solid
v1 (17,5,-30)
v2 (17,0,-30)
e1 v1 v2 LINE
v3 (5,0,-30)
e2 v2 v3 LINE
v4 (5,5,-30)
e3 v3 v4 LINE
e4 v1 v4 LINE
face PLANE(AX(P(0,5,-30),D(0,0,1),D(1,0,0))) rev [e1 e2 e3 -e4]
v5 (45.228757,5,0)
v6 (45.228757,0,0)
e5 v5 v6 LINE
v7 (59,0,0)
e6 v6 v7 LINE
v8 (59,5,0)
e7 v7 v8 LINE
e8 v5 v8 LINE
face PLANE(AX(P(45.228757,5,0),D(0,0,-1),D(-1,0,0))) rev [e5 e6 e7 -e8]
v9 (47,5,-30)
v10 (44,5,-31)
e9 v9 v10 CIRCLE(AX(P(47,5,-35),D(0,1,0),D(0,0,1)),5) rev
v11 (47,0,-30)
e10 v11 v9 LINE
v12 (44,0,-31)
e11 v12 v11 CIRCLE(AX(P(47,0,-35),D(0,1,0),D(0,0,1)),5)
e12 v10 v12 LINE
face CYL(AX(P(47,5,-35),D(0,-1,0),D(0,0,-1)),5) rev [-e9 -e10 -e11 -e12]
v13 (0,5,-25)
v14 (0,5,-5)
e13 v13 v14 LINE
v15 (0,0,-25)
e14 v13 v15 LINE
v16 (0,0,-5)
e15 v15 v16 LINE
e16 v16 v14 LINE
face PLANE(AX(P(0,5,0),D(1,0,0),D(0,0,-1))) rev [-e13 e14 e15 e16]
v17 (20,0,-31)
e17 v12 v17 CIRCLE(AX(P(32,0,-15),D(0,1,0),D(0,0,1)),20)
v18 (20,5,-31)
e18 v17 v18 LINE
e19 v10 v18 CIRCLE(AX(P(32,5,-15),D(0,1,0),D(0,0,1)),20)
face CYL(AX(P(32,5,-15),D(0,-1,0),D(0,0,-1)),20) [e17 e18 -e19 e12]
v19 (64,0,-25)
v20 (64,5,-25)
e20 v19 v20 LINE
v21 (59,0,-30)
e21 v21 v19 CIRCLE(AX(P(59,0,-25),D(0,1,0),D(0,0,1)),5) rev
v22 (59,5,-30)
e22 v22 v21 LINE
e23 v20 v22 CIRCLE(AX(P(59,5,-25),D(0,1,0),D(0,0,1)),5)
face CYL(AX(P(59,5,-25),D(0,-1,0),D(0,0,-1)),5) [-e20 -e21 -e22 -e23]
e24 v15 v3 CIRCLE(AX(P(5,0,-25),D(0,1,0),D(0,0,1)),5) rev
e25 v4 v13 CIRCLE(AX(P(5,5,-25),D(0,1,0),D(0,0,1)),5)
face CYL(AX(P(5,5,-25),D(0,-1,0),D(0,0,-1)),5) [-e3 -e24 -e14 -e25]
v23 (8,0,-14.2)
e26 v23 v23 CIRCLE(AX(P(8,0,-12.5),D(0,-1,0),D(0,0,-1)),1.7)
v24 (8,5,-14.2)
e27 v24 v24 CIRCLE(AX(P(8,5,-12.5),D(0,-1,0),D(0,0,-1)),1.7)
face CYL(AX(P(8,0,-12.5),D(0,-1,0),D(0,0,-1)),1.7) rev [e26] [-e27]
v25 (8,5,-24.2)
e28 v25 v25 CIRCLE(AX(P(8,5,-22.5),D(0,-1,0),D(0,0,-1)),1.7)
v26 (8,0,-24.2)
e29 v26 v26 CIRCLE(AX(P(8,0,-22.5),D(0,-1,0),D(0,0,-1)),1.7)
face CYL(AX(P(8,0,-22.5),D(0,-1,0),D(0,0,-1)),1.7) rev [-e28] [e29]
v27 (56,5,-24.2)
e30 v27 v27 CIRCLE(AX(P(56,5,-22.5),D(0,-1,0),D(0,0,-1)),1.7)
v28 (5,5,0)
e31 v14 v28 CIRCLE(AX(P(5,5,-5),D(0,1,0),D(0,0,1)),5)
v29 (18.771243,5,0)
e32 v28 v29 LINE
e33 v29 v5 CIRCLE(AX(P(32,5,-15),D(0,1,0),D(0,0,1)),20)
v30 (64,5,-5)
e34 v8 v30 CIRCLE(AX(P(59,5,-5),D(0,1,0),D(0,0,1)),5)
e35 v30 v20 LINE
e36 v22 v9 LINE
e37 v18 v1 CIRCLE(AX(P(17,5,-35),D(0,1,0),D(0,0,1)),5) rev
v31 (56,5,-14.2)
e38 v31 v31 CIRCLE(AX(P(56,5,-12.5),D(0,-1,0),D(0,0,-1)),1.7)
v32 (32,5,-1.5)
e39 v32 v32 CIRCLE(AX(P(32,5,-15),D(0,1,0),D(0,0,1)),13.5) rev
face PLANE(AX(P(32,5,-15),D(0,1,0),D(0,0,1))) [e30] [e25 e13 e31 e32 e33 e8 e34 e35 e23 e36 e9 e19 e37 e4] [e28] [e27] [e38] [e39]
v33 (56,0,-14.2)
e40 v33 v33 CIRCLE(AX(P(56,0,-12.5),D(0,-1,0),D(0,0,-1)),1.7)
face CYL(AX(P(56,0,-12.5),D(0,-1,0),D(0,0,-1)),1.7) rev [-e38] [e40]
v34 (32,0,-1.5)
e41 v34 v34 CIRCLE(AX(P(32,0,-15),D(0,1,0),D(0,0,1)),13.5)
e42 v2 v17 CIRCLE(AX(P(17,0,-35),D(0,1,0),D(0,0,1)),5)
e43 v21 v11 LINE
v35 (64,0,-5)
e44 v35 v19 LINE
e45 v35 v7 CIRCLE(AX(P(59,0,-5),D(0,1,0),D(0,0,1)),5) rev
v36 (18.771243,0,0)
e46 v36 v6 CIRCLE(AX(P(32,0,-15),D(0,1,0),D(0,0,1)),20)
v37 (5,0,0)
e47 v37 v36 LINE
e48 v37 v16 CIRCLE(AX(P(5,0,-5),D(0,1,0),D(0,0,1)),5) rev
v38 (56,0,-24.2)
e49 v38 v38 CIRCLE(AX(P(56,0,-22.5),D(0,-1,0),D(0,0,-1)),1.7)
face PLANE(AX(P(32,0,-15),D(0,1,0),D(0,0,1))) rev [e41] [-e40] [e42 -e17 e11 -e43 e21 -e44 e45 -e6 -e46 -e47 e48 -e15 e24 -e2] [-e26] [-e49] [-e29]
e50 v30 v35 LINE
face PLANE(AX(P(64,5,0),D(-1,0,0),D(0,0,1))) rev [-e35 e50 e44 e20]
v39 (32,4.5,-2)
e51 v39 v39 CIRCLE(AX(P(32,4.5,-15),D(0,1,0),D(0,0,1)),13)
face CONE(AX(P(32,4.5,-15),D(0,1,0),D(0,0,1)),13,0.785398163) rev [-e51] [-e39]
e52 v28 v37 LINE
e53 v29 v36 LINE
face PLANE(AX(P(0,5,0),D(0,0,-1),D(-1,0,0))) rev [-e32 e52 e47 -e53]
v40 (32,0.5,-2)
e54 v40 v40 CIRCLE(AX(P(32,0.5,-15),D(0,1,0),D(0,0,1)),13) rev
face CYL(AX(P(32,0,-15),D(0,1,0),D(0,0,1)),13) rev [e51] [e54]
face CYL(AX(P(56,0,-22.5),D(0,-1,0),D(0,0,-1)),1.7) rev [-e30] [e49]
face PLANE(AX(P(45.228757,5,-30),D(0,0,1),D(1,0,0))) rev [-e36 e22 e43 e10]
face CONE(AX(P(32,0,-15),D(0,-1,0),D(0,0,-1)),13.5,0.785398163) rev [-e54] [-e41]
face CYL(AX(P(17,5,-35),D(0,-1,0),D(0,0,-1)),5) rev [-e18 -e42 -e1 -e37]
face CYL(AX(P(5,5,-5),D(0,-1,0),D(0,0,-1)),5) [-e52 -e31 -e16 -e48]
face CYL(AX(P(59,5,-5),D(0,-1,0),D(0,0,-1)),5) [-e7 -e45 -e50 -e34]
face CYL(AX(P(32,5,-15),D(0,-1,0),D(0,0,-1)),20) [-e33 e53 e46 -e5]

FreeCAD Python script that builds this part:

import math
import FreeCAD as App
import Part
import Sketcher
from FreeCAD import Vector
Q = App.Units.Quantity


def edges_at(feature, points):
    """Names of the edges that pass closest to the given points."""
    edges = feature.Shape.Edges
    near = lambda p: min(range(len(edges)), key=lambda i: edges[i].distToShape(Part.Vertex(*p))[0])
    return sorted({f"Edge{near(p) + 1}" for p in points})

doc = App.newDocument("Part")
body = doc.addObject("PartDesign::Body", "Body")

# Sketch on XZ plane
sketch1 = body.newObject("Sketcher::SketchObject", "Sketch")
sketch1.AttachmentSupport = (doc.getObject("XZ_Plane"), [""])
sketch1.MapMode = "FlatFace"
sketch1.addGeometry([
    Part.LineSegment(Vector(64, -30, 0), Vector(45.228757, -30, 0)),  # 0
    Part.ArcOfCircle(Part.Circle(Vector(32, -15, 0), Vector(0, 0, 1), 20), math.radians(-131.409622), math.radians(-48.590378)),  # 1
    Part.LineSegment(Vector(18.771243, -30, 0), Vector(0, -30, 0)),  # 2
    Part.LineSegment(Vector(0, -30, 0), Vector(0, 0, 0)),  # 3
    Part.LineSegment(Vector(0, 0, 0), Vector(18.771243, 0, 0)),  # 4
    Part.ArcOfCircle(Part.Circle(Vector(32, -15, 0), Vector(0, 0, 1), 20), math.radians(48.590378), math.radians(131.409622)),  # 5
    Part.LineSegment(Vector(45.228757, 0, 0), Vector(64, 0, 0)),  # 6
    Part.LineSegment(Vector(64, 0, 0), Vector(64, -30, 0)),  # 7
], False)
sketch1.addConstraint([
    Sketcher.Constraint("Coincident", 0, 2, 1, 2),
    Sketcher.Constraint("Coincident", 1, 1, 2, 1),
    Sketcher.Constraint("Coincident", 2, 2, 3, 1),
    Sketcher.Constraint("Coincident", 3, 2, 4, 1),
    Sketcher.Constraint("Coincident", 4, 2, 5, 2),
    Sketcher.Constraint("Coincident", 5, 1, 6, 1),
    Sketcher.Constraint("Coincident", 6, 2, 7, 1),
    Sketcher.Constraint("Coincident", 7, 2, 0, 1),
    Sketcher.Constraint("Horizontal", 0),
    Sketcher.Constraint("Horizontal", 2),
    Sketcher.Constraint("Vertical", 3),
    Sketcher.Constraint("Horizontal", 4),
    Sketcher.Constraint("Horizontal", 6),
    Sketcher.Constraint("Vertical", 7),
    Sketcher.Constraint("Coincident", 3, 2, -1, 1),
    Sketcher.Constraint("Coincident", 5, 3, 1, 3),
    Sketcher.Constraint("Equal", 1, 5),
    Sketcher.Constraint("PointOnObject", 5, 1, -1),
    Sketcher.Constraint("Horizontal", 0, 2, 1, 1),
    Sketcher.Constraint("Vertical", 1, 1, 4, 2),
    Sketcher.Constraint("Equal", 0, 2),
    Sketcher.Constraint("Radius", 1, Q("20 mm")),
    Sketcher.Constraint("DistanceY", 3, 1, 3, 2, Q("30 mm")),
    Sketcher.Constraint("DistanceX", -1, 1, 1, 3, Q("32 mm")),
])
pad1 = body.newObject("PartDesign::Pad", "Pad")
pad1.Profile = sketch1
pad1.Length = 5
pad1.Reversed = True

# Sketch on XZ plane
sketch2 = body.newObject("Sketcher::SketchObject", "Sketch001")
sketch2.AttachmentSupport = (doc.getObject("XZ_Plane"), [""])
sketch2.MapMode = "FlatFace"
sketch2.AttachmentOffset = App.Placement(Vector(0, 0, -5), App.Rotation())
sketch2.addGeometry(Part.Circle(Vector(32, -15, 0), Vector(0, 0, 1), 13), False)
sketch2.addConstraint([
    Sketcher.Constraint("Diameter", 0, Q("26 mm")),
    Sketcher.Constraint("DistanceX", -1, 1, 0, 3, Q("32 mm")),
    Sketcher.Constraint("DistanceY", 0, 3, -1, 1, Q("15 mm")),
])
pocket1 = body.newObject("PartDesign::Pocket", "Pocket")
pocket1.Profile = sketch2
pocket1.Length = 5
pocket1.Reversed = True
doc.recompute()

fillet = body.newObject("PartDesign::Fillet", "Fillet")
fillet.Base = (pocket1, edges_at(pocket1, [
    (0, 2.5, -30),
    (18.771, 2.5, -30),
    (45.229, 2.5, -30),
    (64, 2.5, -30),
    (64, 2.5, 0),
    (0, 2.5, 0),
]))
fillet.Radius = 5

# Sketch on XZ plane
sketch3 = body.newObject("Sketcher::SketchObject", "Sketch002")
sketch3.AttachmentSupport = (doc.getObject("XZ_Plane"), [""])
sketch3.MapMode = "FlatFace"
sketch3.addGeometry([
    Part.Circle(Vector(56, -22.5, 0), Vector(0, 0, 1), 1.7),
    Part.Circle(Vector(56, -12.5, 0), Vector(0, 0, 1), 1.7),
    Part.Circle(Vector(8, -22.5, 0), Vector(0, 0, 1), 1.7),
    Part.Circle(Vector(8, -12.5, 0), Vector(0, 0, 1), 1.7),
], False)
sketch3.addConstraint([
    Sketcher.Constraint("Equal", 0, 1),
    Sketcher.Constraint("Equal", 1, 2),
    Sketcher.Constraint("Equal", 2, 3),
    Sketcher.Constraint("Horizontal", 0, 3, 2, 3),
    Sketcher.Constraint("Horizontal", 1, 3, 3, 3),
    Sketcher.Constraint("Vertical", 0, 3, 1, 3),
    Sketcher.Constraint("Vertical", 2, 3, 3, 3),
    Sketcher.Constraint("Diameter", 0, Q("3.4 mm")),
    Sketcher.Constraint("DistanceX", -1, 1, 0, 3, Q("56 mm")),
    Sketcher.Constraint("DistanceX", -1, 1, 2, 3, Q("8 mm")),
    Sketcher.Constraint("DistanceY", 0, 3, 1, 3, Q("10 mm")),
    Sketcher.Constraint("DistanceY", 0, 3, -1, 1, Q("22.5 mm")),
])
doc.recompute()
hole = body.newObject("PartDesign::Hole", "Hole")
hole.Profile = sketch3
hole.ThreadType = "None"
hole.Diameter = 3.4
hole.DepthType = "ThroughAll"
doc.recompute()

chamfer = body.newObject("PartDesign::Chamfer", "Chamfer")
chamfer.Base = (hole, edges_at(hole, [(19, 0, -15), (19, 5, -15)]))
chamfer.Size = 0.5

doc.recompute()
